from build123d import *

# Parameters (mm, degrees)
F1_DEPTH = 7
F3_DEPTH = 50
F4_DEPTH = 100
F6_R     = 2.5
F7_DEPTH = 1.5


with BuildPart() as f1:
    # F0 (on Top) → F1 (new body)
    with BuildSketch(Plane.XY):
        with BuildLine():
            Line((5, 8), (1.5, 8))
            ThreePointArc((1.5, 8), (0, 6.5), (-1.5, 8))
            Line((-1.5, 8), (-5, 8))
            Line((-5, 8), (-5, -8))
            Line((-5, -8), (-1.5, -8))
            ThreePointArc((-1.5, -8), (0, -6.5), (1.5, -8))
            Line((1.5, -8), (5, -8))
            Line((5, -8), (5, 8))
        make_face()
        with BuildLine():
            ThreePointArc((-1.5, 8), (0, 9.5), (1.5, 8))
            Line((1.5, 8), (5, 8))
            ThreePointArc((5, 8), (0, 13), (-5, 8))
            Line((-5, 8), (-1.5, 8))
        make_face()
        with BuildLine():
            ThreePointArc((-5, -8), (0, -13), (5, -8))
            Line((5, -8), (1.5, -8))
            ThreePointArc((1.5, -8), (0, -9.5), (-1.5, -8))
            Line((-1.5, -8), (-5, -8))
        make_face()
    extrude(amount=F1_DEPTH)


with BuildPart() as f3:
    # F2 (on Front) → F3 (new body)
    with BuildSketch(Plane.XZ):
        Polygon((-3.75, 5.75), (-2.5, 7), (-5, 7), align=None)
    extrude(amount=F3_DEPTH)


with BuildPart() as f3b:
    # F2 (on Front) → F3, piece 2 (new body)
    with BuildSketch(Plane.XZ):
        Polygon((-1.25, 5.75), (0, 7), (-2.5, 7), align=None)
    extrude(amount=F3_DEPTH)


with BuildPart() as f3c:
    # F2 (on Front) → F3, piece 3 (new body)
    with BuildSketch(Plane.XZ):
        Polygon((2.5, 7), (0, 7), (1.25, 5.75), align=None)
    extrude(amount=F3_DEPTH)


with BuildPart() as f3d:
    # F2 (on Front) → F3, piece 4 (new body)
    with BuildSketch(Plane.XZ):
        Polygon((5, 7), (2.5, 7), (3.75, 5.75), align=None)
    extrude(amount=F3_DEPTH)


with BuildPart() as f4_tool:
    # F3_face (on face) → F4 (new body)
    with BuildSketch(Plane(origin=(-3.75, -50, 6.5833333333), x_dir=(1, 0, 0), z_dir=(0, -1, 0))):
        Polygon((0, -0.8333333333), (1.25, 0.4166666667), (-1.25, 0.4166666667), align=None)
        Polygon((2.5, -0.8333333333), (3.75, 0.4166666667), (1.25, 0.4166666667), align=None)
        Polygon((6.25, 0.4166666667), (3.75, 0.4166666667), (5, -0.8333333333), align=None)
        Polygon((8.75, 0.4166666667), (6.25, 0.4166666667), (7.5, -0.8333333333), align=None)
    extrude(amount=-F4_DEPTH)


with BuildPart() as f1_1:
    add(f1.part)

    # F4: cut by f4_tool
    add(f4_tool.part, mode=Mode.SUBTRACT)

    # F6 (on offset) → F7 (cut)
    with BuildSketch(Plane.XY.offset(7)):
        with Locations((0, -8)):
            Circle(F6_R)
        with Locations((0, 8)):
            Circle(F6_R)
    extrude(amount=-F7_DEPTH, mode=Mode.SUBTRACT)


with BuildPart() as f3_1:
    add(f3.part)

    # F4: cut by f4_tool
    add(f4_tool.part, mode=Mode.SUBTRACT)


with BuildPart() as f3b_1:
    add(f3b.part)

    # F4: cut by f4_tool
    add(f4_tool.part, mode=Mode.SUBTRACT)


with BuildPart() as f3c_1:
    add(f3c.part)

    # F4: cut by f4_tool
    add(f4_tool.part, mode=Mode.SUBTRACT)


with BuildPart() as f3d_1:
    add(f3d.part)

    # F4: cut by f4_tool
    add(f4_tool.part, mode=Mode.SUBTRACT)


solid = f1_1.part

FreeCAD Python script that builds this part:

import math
import FreeCAD as App
import Part
import Sketcher

V = App.Vector


def add_polygon(sketch, points):
    """Adds a closed chain of lines whose ends are joined by coincident constraints."""
    first, n = sketch.GeometryCount, len(points)
    for a, b in zip(points, points[1:] + points[:1]):
        sketch.addGeometry(Part.LineSegment(App.Vector(*a, 0), App.Vector(*b, 0)), False)
    for i in range(n):
        sketch.addConstraint(Sketcher.Constraint("Coincident", first + i, 2, first + (i + 1) % n, 1))

doc = App.newDocument("Part")
params = doc.addObject("Spreadsheet::Sheet", "Params")
for row, (alias, value) in enumerate([
    ("sketch1_diameter", "3 mm"),
    ("sketch1_radius", "5 mm"),
    ("sketch1_height", "16 mm"),
    ("pad1_length", "7 mm"),
    ("sketch2_width", "2.5 mm"),
    ("pad2_length", "50 mm"),
    ("sketch3_width", "2.5 mm"),
    ("pad3_length", "50 mm"),
    ("sketch4_width", "2.5 mm"),
    ("pad4_length", "50 mm"),
    ("sketch5_width", "2.5 mm"),
    ("pad5_length", "50 mm"),
    ("sketch6_width", "2.5 mm"),
    ("pad6_length", "100 mm"),
    ("sketch7_diameter", "5 mm"),
    ("pocket1_length", "1.5 mm"),
], start=1):
    params.set(f"A{row}", alias)
    params.set(f"B{row}", "=" + value)
    params.setAlias(f"B{row}", alias)

body = doc.addObject("PartDesign::Body", "Body")

# Sketch on XY plane
sketch1 = body.newObject("Sketcher::SketchObject", "Sketch")
sketch1.AttachmentSupport = (doc.getObject("XY_Plane"), [""])
sketch1.MapMode = "FlatFace"
sketch1.addGeometry([
    Part.LineSegment(V(-5, 8, 0), V(-5, -8, 0)),  # 0
    Part.ArcOfCircle(Part.Circle(V(0, -8, 0), V(0, 0, 1), 5), math.radians(180), math.radians(360)),  # 1
    Part.LineSegment(V(5, -8, 0), V(5, 8, 0)),  # 2
    Part.ArcOfCircle(Part.Circle(V(0, 8, 0), V(0, 0, 1), 5), math.radians(0), math.radians(180)),  # 3
    Part.Circle(V(0, 8, 0), V(0, 0, 1), 1.5),  # 4
    Part.Circle(V(0, -8, 0), V(0, 0, 1), 1.5),  # 5
], False)
sketch1.addConstraint([
    Sketcher.Constraint("Tangent", 0, 2, 1, 1),
    Sketcher.Constraint("Tangent", 1, 2, 2, 1),
    Sketcher.Constraint("Tangent", 2, 2, 3, 1),
    Sketcher.Constraint("Tangent", 3, 2, 0, 1),
    Sketcher.Constraint("Vertical", 0),
    Sketcher.Constraint("Vertical", 2),
    Sketcher.Constraint("Coincident", 4, 3, 3, 3),
    Sketcher.Constraint("Coincident", 5, 3, 1, 3),
    Sketcher.Constraint("Equal", 4, 5),
    Sketcher.Constraint("Symmetric", 1, 3, 3, 3, -1, 1),
    Sketcher.Constraint("Diameter", 4, 3.0),
    Sketcher.Constraint("Radius", 1, 5.0),
    Sketcher.Constraint("DistanceY", 0, 2, 0, 1, 16.0),
])
sketch1.setExpression("Constraints[10]", "Params.sketch1_diameter")
sketch1.setExpression("Constraints[11]", "Params.sketch1_radius")
sketch1.setExpression("Constraints[12]", "Params.sketch1_height")
pad1 = body.newObject("PartDesign::Pad", "Pad")
pad1.Profile = sketch1
pad1.setExpression("Length", "Params.pad1_length")
body2 = doc.addObject("PartDesign::Body", "Body001")

# Sketch on XZ plane
sketch2 = body2.newObject("Sketcher::SketchObject", "Sketch001")
sketch2.AttachmentSupport = (doc.getObject("XZ_Plane001"), [""])
sketch2.MapMode = "FlatFace"
add_polygon(sketch2, [(-3.75, 5.75), (-2.5, 7), (-5, 7)])  # lines 0-2
sketch2.addConstraint([
    Sketcher.Constraint("Horizontal", 1),
    Sketcher.Constraint("Perpendicular", 0, 2),
    Sketcher.Constraint("Equal", 0, 2),
    Sketcher.Constraint("DistanceX", 1, 2, 1, 1, 2.5),
    Sketcher.Constraint("DistanceY", -1, 1, 0, 2, 7.0),
    Sketcher.Constraint("DistanceX", 1, 2, -1, 1, 5.0),
])
sketch2.setExpression("Constraints[6]", "Params.sketch2_width")
pad2 = body2.newObject("PartDesign::Pad", "Pad001")
pad2.Profile = sketch2
pad2.setExpression("Length", "Params.pad2_length")
body3 = doc.addObject("PartDesign::Body", "Body002")

# Sketch on XZ plane
sketch3 = body3.newObject("Sketcher::SketchObject", "Sketch002")
sketch3.AttachmentSupport = (doc.getObject("XZ_Plane002"), [""])
sketch3.MapMode = "FlatFace"
add_polygon(sketch3, [(-1.25, 5.75), (0, 7), (-2.5, 7)])  # lines 0-2
sketch3.addConstraint([
    Sketcher.Constraint("Horizontal", 1),
    Sketcher.Constraint("PointOnObject", 0, 2, -2),
    Sketcher.Constraint("Perpendicular", 0, 2),
    Sketcher.Constraint("Equal", 0, 2),
    Sketcher.Constraint("DistanceX", 1, 2, 1, 1, 2.5),
    Sketcher.Constraint("DistanceY", -1, 1, 0, 2, 7.0),
])
sketch3.setExpression("Constraints[7]", "Params.sketch3_width")
pad3 = body3.newObject("PartDesign::Pad", "Pad002")
pad3.Profile = sketch3
pad3.setExpression("Length", "Params.pad3_length")
body4 = doc.addObject("PartDesign::Body", "Body003")

# Sketch on XZ plane
sketch4 = body4.newObject("Sketcher::SketchObject", "Sketch003")
sketch4.AttachmentSupport = (doc.getObject("XZ_Plane003"), [""])
sketch4.MapMode = "FlatFace"
add_polygon(sketch4, [(2.5, 7), (0, 7), (1.25, 5.75)])  # lines 0-2
sketch4.addConstraint([
    Sketcher.Constraint("Horizontal", 0),
    Sketcher.Constraint("PointOnObject", 0, 2, -2),
    Sketcher.Constraint("Perpendicular", 1, 2),
    Sketcher.Constraint("Equal", 1, 2),
    Sketcher.Constraint("DistanceX", 0, 2, 0, 1, 2.5),
    Sketcher.Constraint("DistanceY", -1, 1, 0, 2, 7.0),
])
sketch4.setExpression("Constraints[7]", "Params.sketch4_width")
pad4 = body4.newObject("PartDesign::Pad", "Pad003")
pad4.Profile = sketch4
pad4.setExpression("Length", "Params.pad4_length")
body5 = doc.addObject("PartDesign::Body", "Body004")

# Sketch on XZ plane
sketch5 = body5.newObject("Sketcher::SketchObject", "Sketch004")
sketch5.AttachmentSupport = (doc.getObject("XZ_Plane004"), [""])
sketch5.MapMode = "FlatFace"
add_polygon(sketch5, [(5, 7), (2.5, 7), (3.75, 5.75)])  # lines 0-2
sketch5.addConstraint([
    Sketcher.Constraint("Horizontal", 0),
    Sketcher.Constraint("Perpendicular", 1, 2),
    Sketcher.Constraint("Equal", 1, 2),
    Sketcher.Constraint("DistanceX", 0, 2, 0, 1, 2.5),
    Sketcher.Constraint("DistanceY", -1, 1, 0, 2, 7.0),
    Sketcher.Constraint("DistanceX", -1, 1, 2, 2, 5.0),
])
sketch5.setExpression("Constraints[6]", "Params.sketch5_width")
pad5 = body5.newObject("PartDesign::Pad", "Pad004")
pad5.Profile = sketch5
pad5.setExpression("Length", "Params.pad5_length")
body6 = doc.addObject("PartDesign::Body", "Body005")
body6.AllowCompound = True

# Sketch on XZ plane
sketch6 = body6.newObject("Sketcher::SketchObject", "Sketch005")
sketch6.AttachmentSupport = (doc.getObject("XZ_Plane005"), [""])
sketch6.MapMode = "FlatFace"
sketch6.AttachmentOffset = App.Placement(V(0, 0, 50), App.Rotation())
add_polygon(sketch6, [(-3.75, 5.75), (-2.5, 7), (-5, 7)])  # lines 0-2
add_polygon(sketch6, [(-1.25, 5.75), (0, 7), (-2.5, 7)])  # lines 3-5
add_polygon(sketch6, [(2.5, 7), (0, 7), (1.25, 5.75)])  # lines 6-8
add_polygon(sketch6, [(5, 7), (2.5, 7), (3.75, 5.75)])  # lines 9-11
sketch6.addConstraint([
    Sketcher.Constraint("Horizontal", 1),
    Sketcher.Constraint("Horizontal", 4),
    Sketcher.Constraint("Horizontal", 6),
    Sketcher.Constraint("Horizontal", 9),
    Sketcher.Constraint("Coincident", 4, 2, 0, 2),
    Sketcher.Constraint("Coincident", 6, 2, 3, 2),
    Sketcher.Constraint("Coincident", 9, 2, 8, 2),
    Sketcher.Constraint("Symmetric", 5, 2, 7, 2, -2),
    Sketcher.Constraint("Symmetric", 2, 2, 10, 2, -2),
    Sketcher.Constraint("PointOnObject", 3, 2, -2),
    Sketcher.Constraint("Perpendicular", 0, 2),
    Sketcher.Constraint("Perpendicular", 2, 3),
    Sketcher.Constraint("Perpendicular", 3, 5),
    Sketcher.Constraint("Parallel", 5, 7),
    Sketcher.Constraint("Perpendicular", 7, 8),
    Sketcher.Constraint("Perpendicular", 10, 11),
    Sketcher.Constraint("Horizontal", 2, 2, 5, 2),
    Sketcher.Constraint("DistanceX", 1, 2, 1, 1, 2.5),
    Sketcher.Constraint("DistanceY", -1, 1, 0, 2, 7.0),
])
sketch6.setExpression("Constraints[29]", "Params.sketch6_width")
pad6 = body6.newObject("PartDesign::Pad", "Pad005")
pad6.Profile = sketch6
pad6.setExpression("Length", "Params.pad6_length")
pad6.Reversed = True
doc.recompute()

body7 = doc.addObject("PartDesign::Body", "Body006")
body7.BaseFeature = body6
boolean = body.newObject("PartDesign::Boolean", "Boolean")
boolean.Type = "Cut"
boolean.addObjects([body7])
doc.recompute()

# Sketch on XY plane
sketch7 = body.newObject("Sketcher::SketchObject", "Sketch006")
sketch7.AttachmentSupport = (doc.getObject("XY_Plane"), [""])
sketch7.MapMode = "FlatFace"
sketch7.AttachmentOffset = App.Placement(V(0, 0, 7), App.Rotation())
sketch7.addGeometry([
    Part.Circle(V(0, -8, 0), V(0, 0, 1), 2.5),
    Part.Circle(V(0, 8, 0), V(0, 0, 1), 2.5),
], False)
sketch7.addConstraint([
    Sketcher.Constraint("Equal", 0, 1),
    Sketcher.Constraint("Symmetric", 0, 3, 1, 3, -1, 1),
    Sketcher.Constraint("PointOnObject", 0, 3, -2),
    Sketcher.Constraint("Diameter", 0, 5.0),
    Sketcher.Constraint("DistanceY", 0, 3, -1, 1, 8.0),
])
sketch7.setExpression("Constraints[3]", "Params.sketch7_diameter")
pocket1 = body.newObject("PartDesign::Pocket", "Pocket")
pocket1.Profile = sketch7
pocket1.setExpression("Length", "Params.pocket1_length")
doc.recompute()

body8 = doc.addObject("PartDesign::Body", "Body007")
body8.BaseFeature = body6
boolean2 = body2.newObject("PartDesign::Boolean", "Boolean001")
boolean2.Type = "Cut"
boolean2.addObjects([body8])
doc.recompute()

body9 = doc.addObject("PartDesign::Body", "Body008")
body9.BaseFeature = body6
boolean3 = body3.newObject("PartDesign::Boolean", "Boolean002")
boolean3.Type = "Cut"
boolean3.addObjects([body9])
doc.recompute()

body10 = doc.addObject("PartDesign::Body", "Body009")
body10.BaseFeature = body6
boolean4 = body4.newObject("PartDesign::Boolean", "Boolean003")
boolean4.Type = "Cut"
boolean4.addObjects([body10])
doc.recompute()

boolean5 = body5.newObject("PartDesign::Boolean", "Boolean004")
boolean5.Type = "Cut"
boolean5.addObjects([body6])

doc.recompute()
